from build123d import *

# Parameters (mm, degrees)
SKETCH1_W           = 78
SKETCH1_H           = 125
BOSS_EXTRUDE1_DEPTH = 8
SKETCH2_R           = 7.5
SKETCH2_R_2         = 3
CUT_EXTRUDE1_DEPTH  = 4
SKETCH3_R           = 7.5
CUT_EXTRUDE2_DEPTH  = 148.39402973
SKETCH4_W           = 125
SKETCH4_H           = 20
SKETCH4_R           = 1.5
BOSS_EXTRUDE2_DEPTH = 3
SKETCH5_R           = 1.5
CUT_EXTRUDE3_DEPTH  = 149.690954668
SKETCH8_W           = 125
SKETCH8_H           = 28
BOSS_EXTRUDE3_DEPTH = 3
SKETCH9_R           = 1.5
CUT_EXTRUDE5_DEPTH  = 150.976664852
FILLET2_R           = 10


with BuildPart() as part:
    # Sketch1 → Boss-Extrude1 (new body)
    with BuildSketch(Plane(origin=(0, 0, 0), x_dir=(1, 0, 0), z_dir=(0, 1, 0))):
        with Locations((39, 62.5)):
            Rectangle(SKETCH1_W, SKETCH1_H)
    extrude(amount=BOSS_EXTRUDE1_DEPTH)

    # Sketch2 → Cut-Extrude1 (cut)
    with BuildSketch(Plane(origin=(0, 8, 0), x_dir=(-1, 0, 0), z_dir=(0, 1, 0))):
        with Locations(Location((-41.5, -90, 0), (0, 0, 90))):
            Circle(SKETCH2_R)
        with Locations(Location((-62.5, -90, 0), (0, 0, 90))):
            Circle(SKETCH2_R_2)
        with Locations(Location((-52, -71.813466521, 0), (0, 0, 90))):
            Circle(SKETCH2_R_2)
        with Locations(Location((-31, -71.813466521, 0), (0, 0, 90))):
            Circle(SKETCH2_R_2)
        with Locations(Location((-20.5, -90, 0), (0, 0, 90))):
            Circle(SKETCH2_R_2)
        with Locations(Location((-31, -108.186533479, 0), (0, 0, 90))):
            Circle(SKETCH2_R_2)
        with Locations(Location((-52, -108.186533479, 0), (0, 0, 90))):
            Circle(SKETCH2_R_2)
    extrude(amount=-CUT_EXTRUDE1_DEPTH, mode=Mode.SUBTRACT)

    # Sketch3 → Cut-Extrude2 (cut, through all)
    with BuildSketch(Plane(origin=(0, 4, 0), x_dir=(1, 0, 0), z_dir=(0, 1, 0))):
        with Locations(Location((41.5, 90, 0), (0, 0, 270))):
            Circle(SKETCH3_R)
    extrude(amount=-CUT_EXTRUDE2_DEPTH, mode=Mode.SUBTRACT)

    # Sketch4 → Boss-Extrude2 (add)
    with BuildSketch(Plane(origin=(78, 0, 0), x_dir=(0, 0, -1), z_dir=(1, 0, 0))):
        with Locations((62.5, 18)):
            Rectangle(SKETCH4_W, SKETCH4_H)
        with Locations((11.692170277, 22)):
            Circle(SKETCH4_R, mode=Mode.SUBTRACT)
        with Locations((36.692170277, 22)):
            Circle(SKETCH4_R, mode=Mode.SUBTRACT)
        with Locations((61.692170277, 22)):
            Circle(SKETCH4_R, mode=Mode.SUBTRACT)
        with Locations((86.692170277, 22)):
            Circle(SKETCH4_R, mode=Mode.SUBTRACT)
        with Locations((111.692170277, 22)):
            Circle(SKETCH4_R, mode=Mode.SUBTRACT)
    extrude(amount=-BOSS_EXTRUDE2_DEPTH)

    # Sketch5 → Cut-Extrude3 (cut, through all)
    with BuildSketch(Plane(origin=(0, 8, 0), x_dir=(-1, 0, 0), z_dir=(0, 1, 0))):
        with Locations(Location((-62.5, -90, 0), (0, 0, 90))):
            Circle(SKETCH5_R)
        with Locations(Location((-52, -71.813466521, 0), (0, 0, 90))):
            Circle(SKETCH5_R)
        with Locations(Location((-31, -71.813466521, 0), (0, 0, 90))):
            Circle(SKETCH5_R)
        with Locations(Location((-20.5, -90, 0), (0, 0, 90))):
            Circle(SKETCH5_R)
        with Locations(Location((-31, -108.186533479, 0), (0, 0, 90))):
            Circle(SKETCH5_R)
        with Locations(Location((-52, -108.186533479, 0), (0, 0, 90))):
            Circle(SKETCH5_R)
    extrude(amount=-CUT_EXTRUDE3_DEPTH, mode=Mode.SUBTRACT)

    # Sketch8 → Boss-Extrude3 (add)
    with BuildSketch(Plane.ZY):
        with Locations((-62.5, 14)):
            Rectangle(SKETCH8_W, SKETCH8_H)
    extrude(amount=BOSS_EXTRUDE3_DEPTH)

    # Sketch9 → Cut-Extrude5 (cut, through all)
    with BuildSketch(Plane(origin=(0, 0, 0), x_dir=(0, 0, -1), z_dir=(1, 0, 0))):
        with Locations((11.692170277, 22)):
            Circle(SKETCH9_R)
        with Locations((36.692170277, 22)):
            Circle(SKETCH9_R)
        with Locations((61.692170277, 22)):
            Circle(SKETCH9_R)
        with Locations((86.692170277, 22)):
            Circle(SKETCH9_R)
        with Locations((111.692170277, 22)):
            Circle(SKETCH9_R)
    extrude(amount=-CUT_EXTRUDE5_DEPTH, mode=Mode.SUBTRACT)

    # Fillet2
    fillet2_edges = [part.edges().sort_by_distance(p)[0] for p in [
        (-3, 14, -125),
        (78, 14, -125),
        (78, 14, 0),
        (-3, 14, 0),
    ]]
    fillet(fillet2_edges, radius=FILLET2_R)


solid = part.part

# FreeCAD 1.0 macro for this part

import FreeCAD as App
import Part
import Sketcher
from FreeCAD import Vector
Q = App.Units.Quantity


def edges_at(feature, points):
    """Names of the edges that pass closest to the given points."""
    edges = feature.Shape.Edges
    near = lambda p: min(range(len(edges)), key=lambda i: edges[i].distToShape(Part.Vertex(*p))[0])
    return sorted({f"Edge{near(p) + 1}" for p in points})

doc = App.newDocument("Part")
params = doc.addObject("Spreadsheet::Sheet", "Params")
for row, (alias, value) in enumerate([
    ("sketch1_width", "78 mm"),
    ("sketch1_height", "125 mm"),
    ("pad1_length", "8 mm"),
    ("sketch2_diameter", "15 mm"),
    ("sketch2_diameter2", "6 mm"),
    ("pocket1_length", "4 mm"),
    ("sketch3_diameter", "15 mm"),
    ("sketch4_diameter", "3 mm"),
    ("sketch4_width", "20 mm"),
    ("sketch4_height", "125 mm"),
    ("pad2_length", "3 mm"),
    ("sketch5_diameter", "3 mm"),
    ("sketch6_width", "28 mm"),
    ("sketch6_height", "125 mm"),
    ("pad3_length", "3 mm"),
    ("sketch7_diameter", "3 mm"),
    ("fillet_radius", "10 mm"),
], start=1):
    params.set(f"A{row}", alias)
    params.set(f"B{row}", "=" + value)
    params.setAlias(f"B{row}", alias)

body = doc.addObject("PartDesign::Body", "Body")

# Sketch on XZ plane
sketch1 = body.newObject("Sketcher::SketchObject", "Sketch")
sketch1.AttachmentSupport = (doc.getObject("XZ_Plane"), [""])
sketch1.MapMode = "FlatFace"
sketch1.addGeometry(Part.LineSegment(Vector(0, -125, 0), Vector(0, 0, 0)), False)
sketch1.addGeometry(Part.LineSegment(Vector(0, 0, 0), Vector(78, 0, 0)), False)
sketch1.addGeometry(Part.LineSegment(Vector(78, 0, 0), Vector(78, -125, 0)), False)
sketch1.addGeometry(Part.LineSegment(Vector(78, -125, 0), Vector(0, -125, 0)), False)
sketch1.addConstraint(Sketcher.Constraint("Coincident", 0, 2, 1, 1))
sketch1.addConstraint(Sketcher.Constraint("Coincident", 1, 2, 2, 1))
sketch1.addConstraint(Sketcher.Constraint("Coincident", 2, 2, 3, 1))
sketch1.addConstraint(Sketcher.Constraint("Coincident", 3, 2, 0, 1))
sketch1.addConstraint(Sketcher.Constraint("Vertical", 0))
sketch1.addConstraint(Sketcher.Constraint("Horizontal", 1))
sketch1.addConstraint(Sketcher.Constraint("Vertical", 2))
sketch1.addConstraint(Sketcher.Constraint("Horizontal", 3))
sketch1.addConstraint(Sketcher.Constraint("Coincident", 0, 2, -1, 1))
sketch1.addConstraint(Sketcher.Constraint("DistanceX", 1, 1, 1, 2, Q("78 mm")))
sketch1.addConstraint(Sketcher.Constraint("DistanceY", 0, 1, 0, 2, Q("125 mm")))
sketch1.setExpression("Constraints[9]", "Params.sketch1_width")
sketch1.setExpression("Constraints[10]", "Params.sketch1_height")
pad1 = body.newObject("PartDesign::Pad", "Pad")
pad1.Profile = sketch1
pad1.setExpression("Length", "Params.pad1_length")
pad1.Reversed = True

# Sketch on XZ plane
sketch2 = body.newObject("Sketcher::SketchObject", "Sketch001")
sketch2.AttachmentSupport = (doc.getObject("XZ_Plane"), [""])
sketch2.MapMode = "FlatFace"
sketch2.AttachmentOffset = App.Placement(Vector(0, 0, -8), App.Rotation())
sketch2.addGeometry(Part.Circle(Vector(41.5, -90, 0), Vector(0, 0, 1), 7.5), False)
sketch2.addGeometry(Part.Circle(Vector(62.5, -90, 0), Vector(0, 0, 1), 3), False)
sketch2.addGeometry(Part.Circle(Vector(52, -71.8, 0), Vector(0, 0, 1), 3), False)
sketch2.addGeometry(Part.Circle(Vector(31, -71.8, 0), Vector(0, 0, 1), 3), False)
sketch2.addGeometry(Part.Circle(Vector(20.5, -90, 0), Vector(0, 0, 1), 3), False)
sketch2.addGeometry(Part.Circle(Vector(31, -108.2, 0), Vector(0, 0, 1), 3), False)
sketch2.addGeometry(Part.Circle(Vector(52, -108.2, 0), Vector(0, 0, 1), 3), False)
sketch2.addConstraint(Sketcher.Constraint("Equal", 1, 2))
sketch2.addConstraint(Sketcher.Constraint("Equal", 2, 3))
sketch2.addConstraint(Sketcher.Constraint("Equal", 3, 4))
sketch2.addConstraint(Sketcher.Constraint("Equal", 4, 5))
sketch2.addConstraint(Sketcher.Constraint("Equal", 5, 6))
sketch2.addConstraint(Sketcher.Constraint("Horizontal", 0, 3, 1, 3))
sketch2.addConstraint(Sketcher.Constraint("Horizontal", 2, 3, 3, 3))
sketch2.addConstraint(Sketcher.Constraint("Horizontal", 1, 3, 4, 3))
sketch2.addConstraint(Sketcher.Constraint("Horizontal", 5, 3, 6, 3))
sketch2.addConstraint(Sketcher.Constraint("Vertical", 3, 3, 5, 3))
sketch2.addConstraint(Sketcher.Constraint("Vertical", 2, 3, 6, 3))
sketch2.addConstraint(Sketcher.Constraint("Diameter", 0, Q("15 mm")))
sketch2.addConstraint(Sketcher.Constraint("Diameter", 1, Q("6 mm")))
sketch2.addConstraint(Sketcher.Constraint("DistanceY", 0, 3, -1, 1, Q("90 mm")))
sketch2.addConstraint(Sketcher.Constraint("DistanceX", -1, 1, 2, 3, Q("52 mm")))
sketch2.addConstraint(Sketcher.Constraint("DistanceX", -1, 1, 3, 3, Q("31 mm")))
sketch2.addConstraint(Sketcher.Constraint("DistanceX", 0, 3, 1, 3, Q("21 mm")))
sketch2.addConstraint(Sketcher.Constraint("DistanceX", 4, 3, 0, 3, Q("21 mm")))
sketch2.addConstraint(Sketcher.Constraint("DistanceX", -1, 1, 0, 3, Q("41.5 mm")))
sketch2.addConstraint(Sketcher.Constraint("DistanceY", 2, 3, -1, 1, Q("71.813467 mm")))
sketch2.addConstraint(Sketcher.Constraint("DistanceY", 5, 3, -1, 1, Q("108.186533 mm")))
sketch2.setExpression("Constraints[11]", "Params.sketch2_diameter")
sketch2.setExpression("Constraints[12]", "Params.sketch2_diameter2")
pocket1 = body.newObject("PartDesign::Pocket", "Pocket")
pocket1.Profile = sketch2
pocket1.setExpression("Length", "Params.pocket1_length")
pocket1.Reversed = True

# Sketch on XZ plane
sketch3 = body.newObject("Sketcher::SketchObject", "Sketch002")
sketch3.AttachmentSupport = (doc.getObject("XZ_Plane"), [""])
sketch3.MapMode = "FlatFace"
sketch3.AttachmentOffset = App.Placement(Vector(0, 0, -4), App.Rotation())
sketch3.addGeometry(Part.Circle(Vector(42, -90, 0), Vector(0, 0, 1), 8), False)
sketch3.addConstraint(Sketcher.Constraint("Diameter", 0, Q("15 mm")))
sketch3.addConstraint(Sketcher.Constraint("DistanceY", 0, 3, -1, 1, Q("90 mm")))
sketch3.addConstraint(Sketcher.Constraint("DistanceX", -1, 1, 0, 3, Q("41.5 mm")))
sketch3.setExpression("Constraints[0]", "Params.sketch3_diameter")
pocket2 = body.newObject("PartDesign::Pocket", "Pocket001")
pocket2.Profile = sketch3
pocket2.Type = "ThroughAll"
pocket2.Reversed = True

# Sketch on YZ plane
sketch4 = body.newObject("Sketcher::SketchObject", "Sketch003")
sketch4.AttachmentSupport = (doc.getObject("YZ_Plane"), [""])
sketch4.MapMode = "FlatFace"
sketch4.AttachmentOffset = App.Placement(Vector(0, 0, 78), App.Rotation())
sketch4.addGeometry(Part.LineSegment(Vector(28, 0, 0), Vector(8, 0, 0)), False)
sketch4.addGeometry(Part.LineSegment(Vector(8, 0, 0), Vector(8, -125, 0)), False)
sketch4.addGeometry(Part.LineSegment(Vector(8, -125, 0), Vector(28, -125, 0)), False)
sketch4.addGeometry(Part.LineSegment(Vector(28, -125, 0), Vector(28, 0, 0)), False)
sketch4.addGeometry(Part.Circle(Vector(22, -11.7, 0), Vector(0, 0, 1), 1.5), False)
sketch4.addGeometry(Part.Circle(Vector(22, -36.7, 0), Vector(0, 0, 1), 1.5), False)
sketch4.addGeometry(Part.Circle(Vector(22, -61.7, 0), Vector(0, 0, 1), 1.5), False)
sketch4.addGeometry(Part.Circle(Vector(22, -86.7, 0), Vector(0, 0, 1), 1.5), False)
sketch4.addGeometry(Part.Circle(Vector(22, -111.7, 0), Vector(0, 0, 1), 1.5), False)
sketch4.addConstraint(Sketcher.Constraint("Coincident", 0, 2, 1, 1))
sketch4.addConstraint(Sketcher.Constraint("Coincident", 1, 2, 2, 1))
sketch4.addConstraint(Sketcher.Constraint("Coincident", 2, 2, 3, 1))
sketch4.addConstraint(Sketcher.Constraint("Coincident", 3, 2, 0, 1))
sketch4.addConstraint(Sketcher.Constraint("Horizontal", 0))
sketch4.addConstraint(Sketcher.Constraint("Vertical", 1))
sketch4.addConstraint(Sketcher.Constraint("Horizontal", 2))
sketch4.addConstraint(Sketcher.Constraint("Vertical", 3))
sketch4.addConstraint(Sketcher.Constraint("Equal", 4, 5))
sketch4.addConstraint(Sketcher.Constraint("Equal", 5, 6))
sketch4.addConstraint(Sketcher.Constraint("Equal", 6, 7))
sketch4.addConstraint(Sketcher.Constraint("Equal", 7, 8))
sketch4.addConstraint(Sketcher.Constraint("PointOnObject", 0, 2, -1))
sketch4.addConstraint(Sketcher.Constraint("Vertical", 4, 3, 5, 3))
sketch4.addConstraint(Sketcher.Constraint("Vertical", 5, 3, 6, 3))
sketch4.addConstraint(Sketcher.Constraint("Vertical", 6, 3, 7, 3))
sketch4.addConstraint(Sketcher.Constraint("Vertical", 7, 3, 8, 3))
sketch4.addConstraint(Sketcher.Constraint("Diameter", 4, Q("3 mm")))
sketch4.addConstraint(Sketcher.Constraint("DistanceX", 0, 2, 0, 1, Q("20 mm")))
sketch4.addConstraint(Sketcher.Constraint("DistanceY", 1, 2, 1, 1, Q("125 mm")))
sketch4.addConstraint(Sketcher.Constraint("DistanceX", -1, 1, 4, 3, Q("22 mm")))
sketch4.addConstraint(Sketcher.Constraint("DistanceX", -1, 1, 0, 2, Q("8 mm")))
sketch4.addConstraint(Sketcher.Constraint("DistanceY", 5, 3, 4, 3, Q("25 mm")))
sketch4.addConstraint(Sketcher.Constraint("DistanceY", 6, 3, 5, 3, Q("25 mm")))
sketch4.addConstraint(Sketcher.Constraint("DistanceY", 7, 3, 6, 3, Q("25 mm")))
sketch4.addConstraint(Sketcher.Constraint("DistanceY", 8, 3, 7, 3, Q("25 mm")))
sketch4.addConstraint(Sketcher.Constraint("DistanceY", 4, 3, -1, 1, Q("11.69217 mm")))
sketch4.setExpression("Constraints[17]", "Params.sketch4_diameter")
sketch4.setExpression("Constraints[18]", "Params.sketch4_width")
sketch4.setExpression("Constraints[19]", "Params.sketch4_height")
pad2 = body.newObject("PartDesign::Pad", "Pad001")
pad2.Profile = sketch4
pad2.setExpression("Length", "Params.pad2_length")
pad2.Reversed = True

# Sketch on XZ plane
sketch5 = body.newObject("Sketcher::SketchObject", "Sketch004")
sketch5.AttachmentSupport = (doc.getObject("XZ_Plane"), [""])
sketch5.MapMode = "FlatFace"
sketch5.AttachmentOffset = App.Placement(Vector(0, 0, -8), App.Rotation())
sketch5.addGeometry(Part.Circle(Vector(62.5, -90, 0), Vector(0, 0, 1), 1.5), False)
sketch5.addGeometry(Part.Circle(Vector(52, -71.8, 0), Vector(0, 0, 1), 1.5), False)
sketch5.addGeometry(Part.Circle(Vector(31, -71.8, 0), Vector(0, 0, 1), 1.5), False)
sketch5.addGeometry(Part.Circle(Vector(20.5, -90, 0), Vector(0, 0, 1), 1.5), False)
sketch5.addGeometry(Part.Circle(Vector(31, -108.2, 0), Vector(0, 0, 1), 1.5), False)
sketch5.addGeometry(Part.Circle(Vector(52, -108.2, 0), Vector(0, 0, 1), 1.5), False)
sketch5.addConstraint(Sketcher.Constraint("Equal", 0, 1))
sketch5.addConstraint(Sketcher.Constraint("Equal", 1, 2))
sketch5.addConstraint(Sketcher.Constraint("Equal", 2, 3))
sketch5.addConstraint(Sketcher.Constraint("Equal", 3, 4))
sketch5.addConstraint(Sketcher.Constraint("Equal", 4, 5))
sketch5.addConstraint(Sketcher.Constraint("Horizontal", 1, 3, 2, 3))
sketch5.addConstraint(Sketcher.Constraint("Horizontal", 0, 3, 3, 3))
sketch5.addConstraint(Sketcher.Constraint("Horizontal", 4, 3, 5, 3))
sketch5.addConstraint(Sketcher.Constraint("Vertical", 2, 3, 4, 3))
sketch5.addConstraint(Sketcher.Constraint("Vertical", 1, 3, 5, 3))
sketch5.addConstraint(Sketcher.Constraint("Diameter", 0, Q("3 mm")))
sketch5.addConstraint(Sketcher.Constraint("DistanceY", 0, 3, -1, 1, Q("90 mm")))
sketch5.addConstraint(Sketcher.Constraint("DistanceX", -1, 1, 1, 3, Q("52 mm")))
sketch5.addConstraint(Sketcher.Constraint("DistanceX", -1, 1, 2, 3, Q("31 mm")))
sketch5.addConstraint(Sketcher.Constraint("DistanceX", 3, 3, 0, 3, Q("42 mm")))
sketch5.addConstraint(Sketcher.Constraint("DistanceX", -1, 1, 0, 3, Q("62.5 mm")))
sketch5.addConstraint(Sketcher.Constraint("DistanceY", 1, 3, -1, 1, Q("71.813467 mm")))
sketch5.addConstraint(Sketcher.Constraint("DistanceY", 4, 3, -1, 1, Q("108.186533 mm")))
sketch5.setExpression("Constraints[10]", "Params.sketch5_diameter")
pocket3 = body.newObject("PartDesign::Pocket", "Pocket002")
pocket3.Profile = sketch5
pocket3.Type = "ThroughAll"
pocket3.Reversed = True

# Sketch on YZ plane
sketch6 = body.newObject("Sketcher::SketchObject", "Sketch005")
sketch6.AttachmentSupport = (doc.getObject("YZ_Plane"), [""])
sketch6.MapMode = "FlatFace"
sketch6.addGeometry(Part.LineSegment(Vector(28, -125, 0), Vector(0, -125, 0)), False)
sketch6.addGeometry(Part.LineSegment(Vector(0, -125, 0), Vector(0, 0, 0)), False)
sketch6.addGeometry(Part.LineSegment(Vector(0, 0, 0), Vector(28, 0, 0)), False)
sketch6.addGeometry(Part.LineSegment(Vector(28, 0, 0), Vector(28, -125, 0)), False)
sketch6.addConstraint(Sketcher.Constraint("Coincident", 0, 2, 1, 1))
sketch6.addConstraint(Sketcher.Constraint("Coincident", 1, 2, 2, 1))
sketch6.addConstraint(Sketcher.Constraint("Coincident", 2, 2, 3, 1))
sketch6.addConstraint(Sketcher.Constraint("Coincident", 3, 2, 0, 1))
sketch6.addConstraint(Sketcher.Constraint("Horizontal", 0))
sketch6.addConstraint(Sketcher.Constraint("Vertical", 1))
sketch6.addConstraint(Sketcher.Constraint("Horizontal", 2))
sketch6.addConstraint(Sketcher.Constraint("Vertical", 3))
sketch6.addConstraint(Sketcher.Constraint("Coincident", 1, 2, -1, 1))
sketch6.addConstraint(Sketcher.Constraint("DistanceX", 0, 2, 0, 1, Q("28 mm")))
sketch6.addConstraint(Sketcher.Constraint("DistanceY", 1, 1, 1, 2, Q("125 mm")))
sketch6.setExpression("Constraints[9]", "Params.sketch6_width")
sketch6.setExpression("Constraints[10]", "Params.sketch6_height")
pad3 = body.newObject("PartDesign::Pad", "Pad002")
pad3.Profile = sketch6
pad3.setExpression("Length", "Params.pad3_length")
pad3.Reversed = True

# Sketch on YZ plane
sketch7 = body.newObject("Sketcher::SketchObject", "Sketch006")
sketch7.AttachmentSupport = (doc.getObject("YZ_Plane"), [""])
sketch7.MapMode = "FlatFace"
sketch7.addGeometry(Part.Circle(Vector(22, -11.7, 0), Vector(0, 0, 1), 1.5), False)
sketch7.addGeometry(Part.Circle(Vector(22, -36.7, 0), Vector(0, 0, 1), 1.5), False)
sketch7.addGeometry(Part.Circle(Vector(22, -61.7, 0), Vector(0, 0, 1), 1.5), False)
sketch7.addGeometry(Part.Circle(Vector(22, -86.7, 0), Vector(0, 0, 1), 1.5), False)
sketch7.addGeometry(Part.Circle(Vector(22, -111.7, 0), Vector(0, 0, 1), 1.5), False)
sketch7.addConstraint(Sketcher.Constraint("Equal", 0, 1))
sketch7.addConstraint(Sketcher.Constraint("Equal", 1, 2))
sketch7.addConstraint(Sketcher.Constraint("Equal", 2, 3))
sketch7.addConstraint(Sketcher.Constraint("Equal", 3, 4))
sketch7.addConstraint(Sketcher.Constraint("Vertical", 0, 3, 1, 3))
sketch7.addConstraint(Sketcher.Constraint("Vertical", 1, 3, 2, 3))
sketch7.addConstraint(Sketcher.Constraint("Vertical", 2, 3, 3, 3))
sketch7.addConstraint(Sketcher.Constraint("Vertical", 3, 3, 4, 3))
sketch7.addConstraint(Sketcher.Constraint("Diameter", 0, Q("3 mm")))
sketch7.addConstraint(Sketcher.Constraint("DistanceX", -1, 1, 0, 3, Q("22 mm")))
sketch7.addConstraint(Sketcher.Constraint("DistanceY", 1, 3, 0, 3, Q("25 mm")))
sketch7.addConstraint(Sketcher.Constraint("DistanceY", 2, 3, 1, 3, Q("25 mm")))
sketch7.addConstraint(Sketcher.Constraint("DistanceY", 3, 3, 2, 3, Q("25 mm")))
sketch7.addConstraint(Sketcher.Constraint("DistanceY", 4, 3, 3, 3, Q("25 mm")))
sketch7.addConstraint(Sketcher.Constraint("DistanceY", 0, 3, -1, 1, Q("11.69217 mm")))
sketch7.setExpression("Constraints[8]", "Params.sketch7_diameter")
pocket4 = body.newObject("PartDesign::Pocket", "Pocket003")
pocket4.Profile = sketch7
pocket4.Type = "ThroughAll"
doc.recompute()

fillet = body.newObject("PartDesign::Fillet", "Fillet")
fillet.Base = (pocket4, edges_at(pocket4, [
    (-3, 14, -125),
    (78, 14, -125),
    (78, 14, 0),
    (-3, 14, 0),
]))
fillet.setExpression("Radius", "Params.fillet_radius")

doc.recompute()
